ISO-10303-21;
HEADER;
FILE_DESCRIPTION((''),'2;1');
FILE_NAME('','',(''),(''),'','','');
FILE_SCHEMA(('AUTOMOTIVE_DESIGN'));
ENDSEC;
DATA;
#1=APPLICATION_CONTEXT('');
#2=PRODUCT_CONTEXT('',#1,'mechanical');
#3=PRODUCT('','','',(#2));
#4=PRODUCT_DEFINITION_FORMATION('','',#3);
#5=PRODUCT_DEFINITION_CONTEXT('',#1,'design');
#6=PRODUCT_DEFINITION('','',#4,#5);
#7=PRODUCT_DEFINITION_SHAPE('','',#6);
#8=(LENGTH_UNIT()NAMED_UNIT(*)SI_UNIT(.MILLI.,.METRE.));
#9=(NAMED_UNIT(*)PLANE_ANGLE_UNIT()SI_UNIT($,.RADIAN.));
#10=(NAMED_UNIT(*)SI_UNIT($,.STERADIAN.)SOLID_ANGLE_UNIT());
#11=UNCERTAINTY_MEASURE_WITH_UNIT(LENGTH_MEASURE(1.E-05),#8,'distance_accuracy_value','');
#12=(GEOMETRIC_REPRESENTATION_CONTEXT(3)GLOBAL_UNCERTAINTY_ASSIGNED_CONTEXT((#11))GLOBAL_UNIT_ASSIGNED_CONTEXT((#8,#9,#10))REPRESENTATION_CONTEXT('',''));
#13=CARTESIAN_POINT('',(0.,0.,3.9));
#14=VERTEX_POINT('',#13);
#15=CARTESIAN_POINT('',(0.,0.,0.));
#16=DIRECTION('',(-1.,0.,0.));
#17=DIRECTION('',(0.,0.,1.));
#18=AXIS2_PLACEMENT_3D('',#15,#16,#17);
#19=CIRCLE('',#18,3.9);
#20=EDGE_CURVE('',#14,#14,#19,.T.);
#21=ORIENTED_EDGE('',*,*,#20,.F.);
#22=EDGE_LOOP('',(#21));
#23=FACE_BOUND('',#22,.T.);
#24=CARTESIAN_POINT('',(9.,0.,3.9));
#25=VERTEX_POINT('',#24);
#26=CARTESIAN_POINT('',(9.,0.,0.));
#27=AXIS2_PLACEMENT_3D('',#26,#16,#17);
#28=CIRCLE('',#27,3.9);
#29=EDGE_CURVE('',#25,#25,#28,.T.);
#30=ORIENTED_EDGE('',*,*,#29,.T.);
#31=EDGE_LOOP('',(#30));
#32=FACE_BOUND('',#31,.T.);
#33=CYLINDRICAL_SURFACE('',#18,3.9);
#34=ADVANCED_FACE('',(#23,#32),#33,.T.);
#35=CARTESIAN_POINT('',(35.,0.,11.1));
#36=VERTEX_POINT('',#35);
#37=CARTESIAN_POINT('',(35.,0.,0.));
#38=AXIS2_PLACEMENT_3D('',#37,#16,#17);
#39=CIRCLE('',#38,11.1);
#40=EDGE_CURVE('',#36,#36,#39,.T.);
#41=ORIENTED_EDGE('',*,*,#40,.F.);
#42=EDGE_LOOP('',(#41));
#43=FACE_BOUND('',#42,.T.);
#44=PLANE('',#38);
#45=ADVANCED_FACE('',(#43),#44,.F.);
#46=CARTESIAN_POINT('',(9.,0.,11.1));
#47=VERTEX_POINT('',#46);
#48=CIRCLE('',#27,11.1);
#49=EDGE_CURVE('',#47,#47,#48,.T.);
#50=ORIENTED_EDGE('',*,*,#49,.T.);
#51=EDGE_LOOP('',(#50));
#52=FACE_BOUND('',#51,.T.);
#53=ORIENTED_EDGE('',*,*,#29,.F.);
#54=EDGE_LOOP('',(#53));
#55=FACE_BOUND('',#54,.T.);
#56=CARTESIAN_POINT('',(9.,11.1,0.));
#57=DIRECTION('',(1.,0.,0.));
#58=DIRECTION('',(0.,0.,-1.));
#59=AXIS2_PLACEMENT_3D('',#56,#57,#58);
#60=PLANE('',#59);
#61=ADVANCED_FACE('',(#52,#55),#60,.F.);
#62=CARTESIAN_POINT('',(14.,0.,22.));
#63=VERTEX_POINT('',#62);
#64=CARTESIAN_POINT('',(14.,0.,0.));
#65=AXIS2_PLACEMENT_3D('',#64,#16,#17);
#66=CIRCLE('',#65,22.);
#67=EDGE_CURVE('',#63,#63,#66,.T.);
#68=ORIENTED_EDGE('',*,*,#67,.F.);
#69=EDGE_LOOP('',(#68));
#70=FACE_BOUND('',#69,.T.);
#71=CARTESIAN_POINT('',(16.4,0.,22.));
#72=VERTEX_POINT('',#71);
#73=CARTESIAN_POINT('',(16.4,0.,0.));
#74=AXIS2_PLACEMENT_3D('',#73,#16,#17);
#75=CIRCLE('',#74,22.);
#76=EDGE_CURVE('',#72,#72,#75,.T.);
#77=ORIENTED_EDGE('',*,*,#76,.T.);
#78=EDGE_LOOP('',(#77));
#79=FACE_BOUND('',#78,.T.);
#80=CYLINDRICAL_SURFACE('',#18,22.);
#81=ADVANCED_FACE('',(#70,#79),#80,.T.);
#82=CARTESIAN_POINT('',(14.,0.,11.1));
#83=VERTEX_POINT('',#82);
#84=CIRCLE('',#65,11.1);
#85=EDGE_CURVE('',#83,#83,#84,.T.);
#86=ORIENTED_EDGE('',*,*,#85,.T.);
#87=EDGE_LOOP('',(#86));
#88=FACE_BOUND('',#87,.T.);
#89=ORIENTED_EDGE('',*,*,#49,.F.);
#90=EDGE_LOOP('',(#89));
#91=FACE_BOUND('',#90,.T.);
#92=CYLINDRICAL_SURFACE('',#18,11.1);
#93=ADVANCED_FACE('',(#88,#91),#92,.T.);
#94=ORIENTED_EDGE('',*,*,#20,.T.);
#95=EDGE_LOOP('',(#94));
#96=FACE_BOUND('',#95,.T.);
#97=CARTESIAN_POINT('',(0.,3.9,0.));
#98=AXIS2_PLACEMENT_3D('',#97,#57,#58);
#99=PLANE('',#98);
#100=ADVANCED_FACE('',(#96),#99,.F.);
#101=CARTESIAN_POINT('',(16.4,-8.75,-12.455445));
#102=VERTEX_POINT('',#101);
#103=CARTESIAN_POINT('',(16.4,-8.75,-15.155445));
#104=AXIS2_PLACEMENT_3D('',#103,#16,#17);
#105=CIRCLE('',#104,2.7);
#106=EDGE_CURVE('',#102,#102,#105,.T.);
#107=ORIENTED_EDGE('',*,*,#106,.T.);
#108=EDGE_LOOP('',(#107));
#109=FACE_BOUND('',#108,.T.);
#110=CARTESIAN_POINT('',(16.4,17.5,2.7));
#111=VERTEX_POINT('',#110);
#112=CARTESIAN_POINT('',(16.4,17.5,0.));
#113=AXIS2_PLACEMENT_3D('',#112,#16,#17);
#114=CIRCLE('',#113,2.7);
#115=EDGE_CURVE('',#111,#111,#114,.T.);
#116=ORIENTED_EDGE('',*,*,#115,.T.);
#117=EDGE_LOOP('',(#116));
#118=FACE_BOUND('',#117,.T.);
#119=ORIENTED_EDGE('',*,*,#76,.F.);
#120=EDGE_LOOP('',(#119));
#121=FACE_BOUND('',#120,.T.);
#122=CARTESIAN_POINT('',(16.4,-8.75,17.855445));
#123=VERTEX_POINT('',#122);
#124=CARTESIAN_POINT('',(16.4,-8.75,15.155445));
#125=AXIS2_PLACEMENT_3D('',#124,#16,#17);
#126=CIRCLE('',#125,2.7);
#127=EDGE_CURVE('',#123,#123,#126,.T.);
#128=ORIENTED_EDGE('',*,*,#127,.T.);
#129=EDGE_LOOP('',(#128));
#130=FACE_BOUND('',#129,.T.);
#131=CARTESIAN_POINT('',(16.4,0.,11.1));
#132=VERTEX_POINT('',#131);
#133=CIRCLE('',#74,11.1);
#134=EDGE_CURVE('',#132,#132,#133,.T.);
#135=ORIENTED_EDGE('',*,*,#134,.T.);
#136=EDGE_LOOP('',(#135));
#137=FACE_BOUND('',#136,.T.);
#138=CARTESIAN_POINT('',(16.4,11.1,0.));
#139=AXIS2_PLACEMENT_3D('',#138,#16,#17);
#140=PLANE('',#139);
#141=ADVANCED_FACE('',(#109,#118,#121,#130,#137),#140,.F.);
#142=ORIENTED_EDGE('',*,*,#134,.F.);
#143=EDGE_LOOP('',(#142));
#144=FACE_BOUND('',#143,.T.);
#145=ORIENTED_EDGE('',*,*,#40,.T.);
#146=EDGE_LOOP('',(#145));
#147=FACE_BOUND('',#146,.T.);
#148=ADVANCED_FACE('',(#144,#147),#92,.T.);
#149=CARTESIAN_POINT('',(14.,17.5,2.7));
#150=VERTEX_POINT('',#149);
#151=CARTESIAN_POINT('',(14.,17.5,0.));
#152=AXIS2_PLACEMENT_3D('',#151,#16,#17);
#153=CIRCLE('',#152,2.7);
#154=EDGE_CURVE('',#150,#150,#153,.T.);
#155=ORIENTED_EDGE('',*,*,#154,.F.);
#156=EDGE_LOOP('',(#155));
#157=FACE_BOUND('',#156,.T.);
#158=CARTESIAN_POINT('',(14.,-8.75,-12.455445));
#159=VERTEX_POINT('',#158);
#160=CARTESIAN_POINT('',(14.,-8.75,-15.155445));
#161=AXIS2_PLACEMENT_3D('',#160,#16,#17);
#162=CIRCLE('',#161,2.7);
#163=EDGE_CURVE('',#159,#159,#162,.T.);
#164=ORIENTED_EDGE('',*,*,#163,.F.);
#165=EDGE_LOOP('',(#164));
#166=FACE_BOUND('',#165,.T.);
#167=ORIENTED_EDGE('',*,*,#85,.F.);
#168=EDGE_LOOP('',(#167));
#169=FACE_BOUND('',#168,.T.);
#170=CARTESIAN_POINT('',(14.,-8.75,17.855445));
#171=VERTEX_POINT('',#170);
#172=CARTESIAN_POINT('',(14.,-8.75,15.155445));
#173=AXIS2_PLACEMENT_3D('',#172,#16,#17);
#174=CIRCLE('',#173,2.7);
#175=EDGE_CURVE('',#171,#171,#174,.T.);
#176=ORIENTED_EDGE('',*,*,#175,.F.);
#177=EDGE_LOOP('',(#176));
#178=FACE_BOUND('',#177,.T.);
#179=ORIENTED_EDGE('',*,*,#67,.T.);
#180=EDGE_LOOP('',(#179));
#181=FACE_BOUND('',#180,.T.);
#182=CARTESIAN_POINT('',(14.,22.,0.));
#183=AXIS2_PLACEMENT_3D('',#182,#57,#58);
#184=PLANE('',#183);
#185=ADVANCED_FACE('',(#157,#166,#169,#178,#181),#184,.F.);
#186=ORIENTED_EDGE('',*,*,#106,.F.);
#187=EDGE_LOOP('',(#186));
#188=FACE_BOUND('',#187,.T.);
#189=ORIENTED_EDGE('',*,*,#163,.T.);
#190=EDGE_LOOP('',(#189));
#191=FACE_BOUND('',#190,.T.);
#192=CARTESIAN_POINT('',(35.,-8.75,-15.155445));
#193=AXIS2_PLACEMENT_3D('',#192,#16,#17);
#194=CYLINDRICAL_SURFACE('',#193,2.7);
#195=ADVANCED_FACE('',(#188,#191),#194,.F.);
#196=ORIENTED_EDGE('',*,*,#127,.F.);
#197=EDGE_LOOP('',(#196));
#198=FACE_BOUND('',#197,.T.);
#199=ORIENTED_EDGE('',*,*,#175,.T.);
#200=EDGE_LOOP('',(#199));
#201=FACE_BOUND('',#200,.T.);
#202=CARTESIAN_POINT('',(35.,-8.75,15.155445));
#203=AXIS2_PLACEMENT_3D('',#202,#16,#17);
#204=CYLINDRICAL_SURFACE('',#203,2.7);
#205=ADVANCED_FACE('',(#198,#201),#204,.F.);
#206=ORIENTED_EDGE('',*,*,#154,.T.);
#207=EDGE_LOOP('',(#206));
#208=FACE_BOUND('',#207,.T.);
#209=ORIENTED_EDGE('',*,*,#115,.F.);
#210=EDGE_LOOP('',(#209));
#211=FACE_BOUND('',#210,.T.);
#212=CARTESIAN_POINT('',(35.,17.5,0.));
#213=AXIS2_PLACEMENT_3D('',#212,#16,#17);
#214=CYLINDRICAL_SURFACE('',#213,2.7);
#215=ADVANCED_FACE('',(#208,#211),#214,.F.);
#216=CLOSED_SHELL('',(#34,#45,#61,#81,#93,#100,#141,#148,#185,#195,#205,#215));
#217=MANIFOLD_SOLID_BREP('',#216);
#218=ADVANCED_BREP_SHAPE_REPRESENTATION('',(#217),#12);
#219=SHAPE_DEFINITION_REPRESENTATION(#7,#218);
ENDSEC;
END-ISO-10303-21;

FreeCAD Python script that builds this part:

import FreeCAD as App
import Part
import Sketcher
from FreeCAD import Vector
Q = App.Units.Quantity

doc = App.newDocument("Part")
body = doc.addObject("PartDesign::Body", "Body")

# Sketch on XY plane
sketch1 = doc.addObject("Sketcher::SketchObject", "Sketch")
body.addObject(sketch1)
sketch1.AttachmentSupport = (doc.XY_Plane, [""])
sketch1.MapMode = "FlatFace"
sketch1.addGeometry([
    Part.LineSegment(Vector(0, 0, 0), Vector(35, 0, 0)),  # 0
    Part.LineSegment(Vector(35, 0, 0), Vector(35, 11.1, 0)),  # 1
    Part.LineSegment(Vector(35, 11.1, 0), Vector(16.4, 11.1, 0)),  # 2
    Part.LineSegment(Vector(16.4, 11.1, 0), Vector(16.4, 22, 0)),  # 3
    Part.LineSegment(Vector(16.4, 22, 0), Vector(14, 22, 0)),  # 4
    Part.LineSegment(Vector(14, 22, 0), Vector(14, 11.1, 0)),  # 5
    Part.LineSegment(Vector(14, 11.1, 0), Vector(9, 11.1, 0)),  # 6
    Part.LineSegment(Vector(9, 11.1, 0), Vector(9, 3.9, 0)),  # 7
    Part.LineSegment(Vector(9, 3.9, 0), Vector(0, 3.9, 0)),  # 8
    Part.LineSegment(Vector(0, 3.9, 0), Vector(0, 0, 0)),  # 9
], False)
sketch1.addConstraint([
    Sketcher.Constraint("Coincident", 0, 2, 1, 1),
    Sketcher.Constraint("Coincident", 1, 2, 2, 1),
    Sketcher.Constraint("Coincident", 2, 2, 3, 1),
    Sketcher.Constraint("Coincident", 3, 2, 4, 1),
    Sketcher.Constraint("Coincident", 4, 2, 5, 1),
    Sketcher.Constraint("Coincident", 5, 2, 6, 1),
    Sketcher.Constraint("Coincident", 6, 2, 7, 1),
    Sketcher.Constraint("Coincident", 7, 2, 8, 1),
    Sketcher.Constraint("Coincident", 8, 2, 9, 1),
    Sketcher.Constraint("Coincident", 9, 2, 0, 1),
    Sketcher.Constraint("Horizontal", 0),
    Sketcher.Constraint("Vertical", 1),
    Sketcher.Constraint("Horizontal", 2),
    Sketcher.Constraint("Vertical", 3),
    Sketcher.Constraint("Horizontal", 4),
    Sketcher.Constraint("Vertical", 5),
    Sketcher.Constraint("Horizontal", 6),
    Sketcher.Constraint("Vertical", 7),
    Sketcher.Constraint("Horizontal", 8),
    Sketcher.Constraint("Vertical", 9),
    Sketcher.Constraint("Coincident", 9, 2, -1, 1),
    Sketcher.Constraint("Horizontal", 2, 2, 5, 2),
    Sketcher.Constraint("DistanceX", 0, 1, 0, 2, Q("35 mm")),
    Sketcher.Constraint("DistanceX", 6, 2, 6, 1, Q("5 mm")),
    Sketcher.Constraint("DistanceX", 8, 2, 8, 1, Q("9 mm")),
    Sketcher.Constraint("DistanceX", 2, 2, 2, 1, Q("18.6 mm")),
    Sketcher.Constraint("DistanceY", 1, 1, 1, 2, Q("11.1 mm")),
    Sketcher.Constraint("DistanceY", 3, 1, 3, 2, Q("10.9 mm")),
    Sketcher.Constraint("DistanceY", 7, 2, 7, 1, Q("7.2 mm")),
])
revolution = doc.addObject("PartDesign::Revolution", "Revolution")
body.addObject(revolution)
revolution.Profile = sketch1
revolution.ReferenceAxis = (sketch1, ["H_Axis"])
revolution.Angle = 360

# Sketch on YZ plane
sketch2 = doc.addObject("Sketcher::SketchObject", "Sketch001")
body.addObject(sketch2)
sketch2.AttachmentSupport = (doc.YZ_Plane, [""])
sketch2.MapMode = "FlatFace"
sketch2.AttachmentOffset = App.Placement(Vector(0, 0, 14), App.Rotation())
sketch2.addGeometry([
    Part.Circle(Vector(17.5, 0, 0), Vector(0, 0, 1), 2.7),
    Part.Circle(Vector(-8.8, 15.2, 0), Vector(0, 0, 1), 2.7),
    Part.Circle(Vector(-8.8, -15.2, 0), Vector(0, 0, 1), 2.7),
], False)
sketch2.addConstraint([
    Sketcher.Constraint("Equal", 0, 1),
    Sketcher.Constraint("Equal", 1, 2),
    Sketcher.Constraint("Symmetric", 1, 3, 2, 3, -1),
    Sketcher.Constraint("PointOnObject", 0, 3, -1),
    Sketcher.Constraint("Diameter", 0, Q("5.4 mm")),
    Sketcher.Constraint("DistanceX", -1, 1, 0, 3, Q("17.5 mm")),
    Sketcher.Constraint("DistanceX", 1, 3, -1, 1, Q("8.75 mm")),
    Sketcher.Constraint("DistanceY", 2, 3, 1, 3, Q("30.310889 mm")),
])
pocket1 = doc.addObject("PartDesign::Pocket", "Pocket")
body.addObject(pocket1)
pocket1.Profile = sketch2
pocket1.Type = "ThroughAll"
pocket1.Reversed = True

doc.recompute()
